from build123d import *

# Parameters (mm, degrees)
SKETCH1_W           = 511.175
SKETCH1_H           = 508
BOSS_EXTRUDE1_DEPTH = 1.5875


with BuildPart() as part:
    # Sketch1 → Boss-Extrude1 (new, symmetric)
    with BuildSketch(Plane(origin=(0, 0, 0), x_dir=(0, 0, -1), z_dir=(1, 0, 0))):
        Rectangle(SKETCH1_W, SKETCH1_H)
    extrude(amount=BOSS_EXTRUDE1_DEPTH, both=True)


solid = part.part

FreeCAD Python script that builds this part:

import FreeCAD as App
import Part
import Sketcher
from FreeCAD import Vector
Q = App.Units.Quantity

doc = App.newDocument("Part")
body = doc.addObject("PartDesign::Body", "Body")

# Sketch on YZ plane
sketch1 = body.newObject("Sketcher::SketchObject", "Sketch")
sketch1.AttachmentSupport = (doc.getObject("YZ_Plane"), [""])
sketch1.MapMode = "FlatFace"
sketch1.addGeometry(Part.LineSegment(Vector(254, 256, 0), Vector(-254, 256, 0)), False)
sketch1.addGeometry(Part.LineSegment(Vector(-254, 256, 0), Vector(-254, -256, 0)), False)
sketch1.addGeometry(Part.LineSegment(Vector(-254, -256, 0), Vector(254, -256, 0)), False)
sketch1.addGeometry(Part.LineSegment(Vector(254, -256, 0), Vector(254, 256, 0)), False)
sketch1.addConstraint(Sketcher.Constraint("Coincident", 0, 2, 1, 1))
sketch1.addConstraint(Sketcher.Constraint("Coincident", 1, 2, 2, 1))
sketch1.addConstraint(Sketcher.Constraint("Coincident", 2, 2, 3, 1))
sketch1.addConstraint(Sketcher.Constraint("Coincident", 3, 2, 0, 1))
sketch1.addConstraint(Sketcher.Constraint("Horizontal", 0))
sketch1.addConstraint(Sketcher.Constraint("Vertical", 1))
sketch1.addConstraint(Sketcher.Constraint("Horizontal", 2))
sketch1.addConstraint(Sketcher.Constraint("Vertical", 3))
sketch1.addConstraint(Sketcher.Constraint("Symmetric", 0, 2, 2, 2, -1, 1))
sketch1.addConstraint(Sketcher.Constraint("DistanceX", 0, 2, 0, 1, Q("20 in")))
sketch1.addConstraint(Sketcher.Constraint("DistanceY", 1, 2, 1, 1, Q("20.125 in")))
pad1 = body.newObject("PartDesign::Pad", "Pad")
pad1.Profile = sketch1
pad1.Length = Q("0.125 in")
pad1.Midplane = True

doc.recompute()
